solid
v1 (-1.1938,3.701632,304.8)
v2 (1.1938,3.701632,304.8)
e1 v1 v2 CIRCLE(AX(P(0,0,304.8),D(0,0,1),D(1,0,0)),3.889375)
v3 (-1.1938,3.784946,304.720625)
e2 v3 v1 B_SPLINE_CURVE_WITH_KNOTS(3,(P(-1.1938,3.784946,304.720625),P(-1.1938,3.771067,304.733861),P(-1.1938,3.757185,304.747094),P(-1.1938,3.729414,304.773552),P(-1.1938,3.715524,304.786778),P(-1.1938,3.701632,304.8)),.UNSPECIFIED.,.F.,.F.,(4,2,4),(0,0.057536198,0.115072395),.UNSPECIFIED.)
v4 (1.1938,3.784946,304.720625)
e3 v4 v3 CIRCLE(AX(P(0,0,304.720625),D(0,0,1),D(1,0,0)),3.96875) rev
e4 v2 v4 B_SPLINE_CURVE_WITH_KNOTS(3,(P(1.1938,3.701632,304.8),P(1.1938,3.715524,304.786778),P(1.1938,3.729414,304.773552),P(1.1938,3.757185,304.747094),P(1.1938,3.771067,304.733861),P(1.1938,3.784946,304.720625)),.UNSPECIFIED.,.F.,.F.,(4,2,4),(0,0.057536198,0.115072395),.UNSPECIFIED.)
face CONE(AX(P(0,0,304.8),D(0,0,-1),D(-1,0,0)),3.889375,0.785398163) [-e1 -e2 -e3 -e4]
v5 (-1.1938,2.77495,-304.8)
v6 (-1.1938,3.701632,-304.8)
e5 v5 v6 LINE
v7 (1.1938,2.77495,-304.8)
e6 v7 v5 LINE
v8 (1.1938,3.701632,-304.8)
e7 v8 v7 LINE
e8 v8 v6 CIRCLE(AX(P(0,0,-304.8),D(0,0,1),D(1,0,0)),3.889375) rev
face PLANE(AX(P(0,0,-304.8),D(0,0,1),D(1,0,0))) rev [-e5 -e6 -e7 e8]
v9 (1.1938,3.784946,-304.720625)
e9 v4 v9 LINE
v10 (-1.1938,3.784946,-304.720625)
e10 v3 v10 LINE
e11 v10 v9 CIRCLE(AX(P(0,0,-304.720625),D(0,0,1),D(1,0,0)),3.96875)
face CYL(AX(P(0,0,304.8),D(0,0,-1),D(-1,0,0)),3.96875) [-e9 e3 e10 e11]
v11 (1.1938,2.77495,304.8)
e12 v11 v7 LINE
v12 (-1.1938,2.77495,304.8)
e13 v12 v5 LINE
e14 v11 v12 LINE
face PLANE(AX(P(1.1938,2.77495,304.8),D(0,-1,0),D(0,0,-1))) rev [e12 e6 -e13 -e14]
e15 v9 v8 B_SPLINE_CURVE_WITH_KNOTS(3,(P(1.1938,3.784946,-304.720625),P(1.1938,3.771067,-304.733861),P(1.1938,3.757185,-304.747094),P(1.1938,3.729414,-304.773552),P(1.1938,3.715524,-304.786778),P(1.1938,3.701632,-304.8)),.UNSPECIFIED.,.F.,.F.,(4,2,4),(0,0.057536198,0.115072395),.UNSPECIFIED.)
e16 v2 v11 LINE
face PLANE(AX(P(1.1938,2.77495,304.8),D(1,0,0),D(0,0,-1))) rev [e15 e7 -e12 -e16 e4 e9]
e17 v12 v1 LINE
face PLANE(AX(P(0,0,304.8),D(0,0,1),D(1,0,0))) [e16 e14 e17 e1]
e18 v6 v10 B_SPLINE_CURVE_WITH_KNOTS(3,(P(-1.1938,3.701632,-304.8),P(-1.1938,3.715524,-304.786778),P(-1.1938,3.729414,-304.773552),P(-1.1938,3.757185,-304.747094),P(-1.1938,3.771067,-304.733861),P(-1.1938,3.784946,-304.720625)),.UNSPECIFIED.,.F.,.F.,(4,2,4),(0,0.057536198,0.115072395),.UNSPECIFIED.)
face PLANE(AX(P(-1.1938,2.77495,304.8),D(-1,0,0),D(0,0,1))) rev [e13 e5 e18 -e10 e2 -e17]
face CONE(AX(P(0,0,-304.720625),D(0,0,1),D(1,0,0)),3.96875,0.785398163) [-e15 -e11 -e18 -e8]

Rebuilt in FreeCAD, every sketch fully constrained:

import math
import FreeCAD as App
import Part
import Sketcher
Q = App.Units.Quantity


def edges_at(feature, points):
    """Names of the edges that pass closest to the given points."""
    edges = feature.Shape.Edges
    near = lambda p: min(range(len(edges)), key=lambda i: edges[i].distToShape(Part.Vertex(*p))[0])
    return sorted({f"Edge{near(p) + 1}" for p in points})

doc = App.newDocument("Part")
body = doc.addObject("PartDesign::Body", "Body")

sketch1 = doc.addObject("Sketcher::SketchObject", "Sketch")
body.addObject(sketch1)
sketch1.AttachmentSupport = (doc.XY_Plane, [""])
sketch1.MapMode = "FlatFace"
sketch1.addGeometry([
    Part.LineSegment(App.Vector(-1.2, 2.8, 0), App.Vector(-1.2, 3.8, 0)),
    Part.ArcOfCircle(Part.Circle(App.Vector(0, 0, 0), App.Vector(0, 0, 1), 4), math.radians(108), math.radians(432)),
    Part.LineSegment(App.Vector(1.2, 3.8, 0), App.Vector(1.2, 2.8, 0)),
    Part.LineSegment(App.Vector(1.2, 2.8, 0), App.Vector(-1.2, 2.8, 0)),
], False)
sketch1.addConstraint([
    Sketcher.Constraint("Coincident", 0, 2, 1, 1),
    Sketcher.Constraint("Coincident", 1, 2, 2, 1),
    Sketcher.Constraint("Coincident", 2, 2, 3, 1),
    Sketcher.Constraint("Coincident", 3, 2, 0, 1),
    Sketcher.Constraint("Vertical", 0),
    Sketcher.Constraint("Vertical", 2),
    Sketcher.Constraint("Horizontal", 3),
    Sketcher.Constraint("Coincident", 1, 3, -1, 1),
    Sketcher.Constraint("Horizontal", 0, 2, 1, 2),
    Sketcher.Constraint("Radius", 1, Q("0.15625 in")),
    Sketcher.Constraint("DistanceX", 3, 2, 3, 1, Q("0.094 in")),
    Sketcher.Constraint("DistanceY", 0, 1, 0, 2, Q("1.009996 mm")),
])
pad1 = doc.addObject("PartDesign::Pad", "Pad")
body.addObject(pad1)
pad1.Profile = sketch1
pad1.Type = "TwoLengths"
pad1.Length = Q("12 in")
pad1.Length2 = Q("12 in")
doc.recompute()

chamfer = doc.addObject("PartDesign::Chamfer", "Chamfer")
body.addObject(chamfer)
chamfer.Base = (pad1, edges_at(pad1, [(0, -3.969, -304.8), (0, -3.969, 304.8)]))
chamfer.Size = 0.079375

doc.recompute()
